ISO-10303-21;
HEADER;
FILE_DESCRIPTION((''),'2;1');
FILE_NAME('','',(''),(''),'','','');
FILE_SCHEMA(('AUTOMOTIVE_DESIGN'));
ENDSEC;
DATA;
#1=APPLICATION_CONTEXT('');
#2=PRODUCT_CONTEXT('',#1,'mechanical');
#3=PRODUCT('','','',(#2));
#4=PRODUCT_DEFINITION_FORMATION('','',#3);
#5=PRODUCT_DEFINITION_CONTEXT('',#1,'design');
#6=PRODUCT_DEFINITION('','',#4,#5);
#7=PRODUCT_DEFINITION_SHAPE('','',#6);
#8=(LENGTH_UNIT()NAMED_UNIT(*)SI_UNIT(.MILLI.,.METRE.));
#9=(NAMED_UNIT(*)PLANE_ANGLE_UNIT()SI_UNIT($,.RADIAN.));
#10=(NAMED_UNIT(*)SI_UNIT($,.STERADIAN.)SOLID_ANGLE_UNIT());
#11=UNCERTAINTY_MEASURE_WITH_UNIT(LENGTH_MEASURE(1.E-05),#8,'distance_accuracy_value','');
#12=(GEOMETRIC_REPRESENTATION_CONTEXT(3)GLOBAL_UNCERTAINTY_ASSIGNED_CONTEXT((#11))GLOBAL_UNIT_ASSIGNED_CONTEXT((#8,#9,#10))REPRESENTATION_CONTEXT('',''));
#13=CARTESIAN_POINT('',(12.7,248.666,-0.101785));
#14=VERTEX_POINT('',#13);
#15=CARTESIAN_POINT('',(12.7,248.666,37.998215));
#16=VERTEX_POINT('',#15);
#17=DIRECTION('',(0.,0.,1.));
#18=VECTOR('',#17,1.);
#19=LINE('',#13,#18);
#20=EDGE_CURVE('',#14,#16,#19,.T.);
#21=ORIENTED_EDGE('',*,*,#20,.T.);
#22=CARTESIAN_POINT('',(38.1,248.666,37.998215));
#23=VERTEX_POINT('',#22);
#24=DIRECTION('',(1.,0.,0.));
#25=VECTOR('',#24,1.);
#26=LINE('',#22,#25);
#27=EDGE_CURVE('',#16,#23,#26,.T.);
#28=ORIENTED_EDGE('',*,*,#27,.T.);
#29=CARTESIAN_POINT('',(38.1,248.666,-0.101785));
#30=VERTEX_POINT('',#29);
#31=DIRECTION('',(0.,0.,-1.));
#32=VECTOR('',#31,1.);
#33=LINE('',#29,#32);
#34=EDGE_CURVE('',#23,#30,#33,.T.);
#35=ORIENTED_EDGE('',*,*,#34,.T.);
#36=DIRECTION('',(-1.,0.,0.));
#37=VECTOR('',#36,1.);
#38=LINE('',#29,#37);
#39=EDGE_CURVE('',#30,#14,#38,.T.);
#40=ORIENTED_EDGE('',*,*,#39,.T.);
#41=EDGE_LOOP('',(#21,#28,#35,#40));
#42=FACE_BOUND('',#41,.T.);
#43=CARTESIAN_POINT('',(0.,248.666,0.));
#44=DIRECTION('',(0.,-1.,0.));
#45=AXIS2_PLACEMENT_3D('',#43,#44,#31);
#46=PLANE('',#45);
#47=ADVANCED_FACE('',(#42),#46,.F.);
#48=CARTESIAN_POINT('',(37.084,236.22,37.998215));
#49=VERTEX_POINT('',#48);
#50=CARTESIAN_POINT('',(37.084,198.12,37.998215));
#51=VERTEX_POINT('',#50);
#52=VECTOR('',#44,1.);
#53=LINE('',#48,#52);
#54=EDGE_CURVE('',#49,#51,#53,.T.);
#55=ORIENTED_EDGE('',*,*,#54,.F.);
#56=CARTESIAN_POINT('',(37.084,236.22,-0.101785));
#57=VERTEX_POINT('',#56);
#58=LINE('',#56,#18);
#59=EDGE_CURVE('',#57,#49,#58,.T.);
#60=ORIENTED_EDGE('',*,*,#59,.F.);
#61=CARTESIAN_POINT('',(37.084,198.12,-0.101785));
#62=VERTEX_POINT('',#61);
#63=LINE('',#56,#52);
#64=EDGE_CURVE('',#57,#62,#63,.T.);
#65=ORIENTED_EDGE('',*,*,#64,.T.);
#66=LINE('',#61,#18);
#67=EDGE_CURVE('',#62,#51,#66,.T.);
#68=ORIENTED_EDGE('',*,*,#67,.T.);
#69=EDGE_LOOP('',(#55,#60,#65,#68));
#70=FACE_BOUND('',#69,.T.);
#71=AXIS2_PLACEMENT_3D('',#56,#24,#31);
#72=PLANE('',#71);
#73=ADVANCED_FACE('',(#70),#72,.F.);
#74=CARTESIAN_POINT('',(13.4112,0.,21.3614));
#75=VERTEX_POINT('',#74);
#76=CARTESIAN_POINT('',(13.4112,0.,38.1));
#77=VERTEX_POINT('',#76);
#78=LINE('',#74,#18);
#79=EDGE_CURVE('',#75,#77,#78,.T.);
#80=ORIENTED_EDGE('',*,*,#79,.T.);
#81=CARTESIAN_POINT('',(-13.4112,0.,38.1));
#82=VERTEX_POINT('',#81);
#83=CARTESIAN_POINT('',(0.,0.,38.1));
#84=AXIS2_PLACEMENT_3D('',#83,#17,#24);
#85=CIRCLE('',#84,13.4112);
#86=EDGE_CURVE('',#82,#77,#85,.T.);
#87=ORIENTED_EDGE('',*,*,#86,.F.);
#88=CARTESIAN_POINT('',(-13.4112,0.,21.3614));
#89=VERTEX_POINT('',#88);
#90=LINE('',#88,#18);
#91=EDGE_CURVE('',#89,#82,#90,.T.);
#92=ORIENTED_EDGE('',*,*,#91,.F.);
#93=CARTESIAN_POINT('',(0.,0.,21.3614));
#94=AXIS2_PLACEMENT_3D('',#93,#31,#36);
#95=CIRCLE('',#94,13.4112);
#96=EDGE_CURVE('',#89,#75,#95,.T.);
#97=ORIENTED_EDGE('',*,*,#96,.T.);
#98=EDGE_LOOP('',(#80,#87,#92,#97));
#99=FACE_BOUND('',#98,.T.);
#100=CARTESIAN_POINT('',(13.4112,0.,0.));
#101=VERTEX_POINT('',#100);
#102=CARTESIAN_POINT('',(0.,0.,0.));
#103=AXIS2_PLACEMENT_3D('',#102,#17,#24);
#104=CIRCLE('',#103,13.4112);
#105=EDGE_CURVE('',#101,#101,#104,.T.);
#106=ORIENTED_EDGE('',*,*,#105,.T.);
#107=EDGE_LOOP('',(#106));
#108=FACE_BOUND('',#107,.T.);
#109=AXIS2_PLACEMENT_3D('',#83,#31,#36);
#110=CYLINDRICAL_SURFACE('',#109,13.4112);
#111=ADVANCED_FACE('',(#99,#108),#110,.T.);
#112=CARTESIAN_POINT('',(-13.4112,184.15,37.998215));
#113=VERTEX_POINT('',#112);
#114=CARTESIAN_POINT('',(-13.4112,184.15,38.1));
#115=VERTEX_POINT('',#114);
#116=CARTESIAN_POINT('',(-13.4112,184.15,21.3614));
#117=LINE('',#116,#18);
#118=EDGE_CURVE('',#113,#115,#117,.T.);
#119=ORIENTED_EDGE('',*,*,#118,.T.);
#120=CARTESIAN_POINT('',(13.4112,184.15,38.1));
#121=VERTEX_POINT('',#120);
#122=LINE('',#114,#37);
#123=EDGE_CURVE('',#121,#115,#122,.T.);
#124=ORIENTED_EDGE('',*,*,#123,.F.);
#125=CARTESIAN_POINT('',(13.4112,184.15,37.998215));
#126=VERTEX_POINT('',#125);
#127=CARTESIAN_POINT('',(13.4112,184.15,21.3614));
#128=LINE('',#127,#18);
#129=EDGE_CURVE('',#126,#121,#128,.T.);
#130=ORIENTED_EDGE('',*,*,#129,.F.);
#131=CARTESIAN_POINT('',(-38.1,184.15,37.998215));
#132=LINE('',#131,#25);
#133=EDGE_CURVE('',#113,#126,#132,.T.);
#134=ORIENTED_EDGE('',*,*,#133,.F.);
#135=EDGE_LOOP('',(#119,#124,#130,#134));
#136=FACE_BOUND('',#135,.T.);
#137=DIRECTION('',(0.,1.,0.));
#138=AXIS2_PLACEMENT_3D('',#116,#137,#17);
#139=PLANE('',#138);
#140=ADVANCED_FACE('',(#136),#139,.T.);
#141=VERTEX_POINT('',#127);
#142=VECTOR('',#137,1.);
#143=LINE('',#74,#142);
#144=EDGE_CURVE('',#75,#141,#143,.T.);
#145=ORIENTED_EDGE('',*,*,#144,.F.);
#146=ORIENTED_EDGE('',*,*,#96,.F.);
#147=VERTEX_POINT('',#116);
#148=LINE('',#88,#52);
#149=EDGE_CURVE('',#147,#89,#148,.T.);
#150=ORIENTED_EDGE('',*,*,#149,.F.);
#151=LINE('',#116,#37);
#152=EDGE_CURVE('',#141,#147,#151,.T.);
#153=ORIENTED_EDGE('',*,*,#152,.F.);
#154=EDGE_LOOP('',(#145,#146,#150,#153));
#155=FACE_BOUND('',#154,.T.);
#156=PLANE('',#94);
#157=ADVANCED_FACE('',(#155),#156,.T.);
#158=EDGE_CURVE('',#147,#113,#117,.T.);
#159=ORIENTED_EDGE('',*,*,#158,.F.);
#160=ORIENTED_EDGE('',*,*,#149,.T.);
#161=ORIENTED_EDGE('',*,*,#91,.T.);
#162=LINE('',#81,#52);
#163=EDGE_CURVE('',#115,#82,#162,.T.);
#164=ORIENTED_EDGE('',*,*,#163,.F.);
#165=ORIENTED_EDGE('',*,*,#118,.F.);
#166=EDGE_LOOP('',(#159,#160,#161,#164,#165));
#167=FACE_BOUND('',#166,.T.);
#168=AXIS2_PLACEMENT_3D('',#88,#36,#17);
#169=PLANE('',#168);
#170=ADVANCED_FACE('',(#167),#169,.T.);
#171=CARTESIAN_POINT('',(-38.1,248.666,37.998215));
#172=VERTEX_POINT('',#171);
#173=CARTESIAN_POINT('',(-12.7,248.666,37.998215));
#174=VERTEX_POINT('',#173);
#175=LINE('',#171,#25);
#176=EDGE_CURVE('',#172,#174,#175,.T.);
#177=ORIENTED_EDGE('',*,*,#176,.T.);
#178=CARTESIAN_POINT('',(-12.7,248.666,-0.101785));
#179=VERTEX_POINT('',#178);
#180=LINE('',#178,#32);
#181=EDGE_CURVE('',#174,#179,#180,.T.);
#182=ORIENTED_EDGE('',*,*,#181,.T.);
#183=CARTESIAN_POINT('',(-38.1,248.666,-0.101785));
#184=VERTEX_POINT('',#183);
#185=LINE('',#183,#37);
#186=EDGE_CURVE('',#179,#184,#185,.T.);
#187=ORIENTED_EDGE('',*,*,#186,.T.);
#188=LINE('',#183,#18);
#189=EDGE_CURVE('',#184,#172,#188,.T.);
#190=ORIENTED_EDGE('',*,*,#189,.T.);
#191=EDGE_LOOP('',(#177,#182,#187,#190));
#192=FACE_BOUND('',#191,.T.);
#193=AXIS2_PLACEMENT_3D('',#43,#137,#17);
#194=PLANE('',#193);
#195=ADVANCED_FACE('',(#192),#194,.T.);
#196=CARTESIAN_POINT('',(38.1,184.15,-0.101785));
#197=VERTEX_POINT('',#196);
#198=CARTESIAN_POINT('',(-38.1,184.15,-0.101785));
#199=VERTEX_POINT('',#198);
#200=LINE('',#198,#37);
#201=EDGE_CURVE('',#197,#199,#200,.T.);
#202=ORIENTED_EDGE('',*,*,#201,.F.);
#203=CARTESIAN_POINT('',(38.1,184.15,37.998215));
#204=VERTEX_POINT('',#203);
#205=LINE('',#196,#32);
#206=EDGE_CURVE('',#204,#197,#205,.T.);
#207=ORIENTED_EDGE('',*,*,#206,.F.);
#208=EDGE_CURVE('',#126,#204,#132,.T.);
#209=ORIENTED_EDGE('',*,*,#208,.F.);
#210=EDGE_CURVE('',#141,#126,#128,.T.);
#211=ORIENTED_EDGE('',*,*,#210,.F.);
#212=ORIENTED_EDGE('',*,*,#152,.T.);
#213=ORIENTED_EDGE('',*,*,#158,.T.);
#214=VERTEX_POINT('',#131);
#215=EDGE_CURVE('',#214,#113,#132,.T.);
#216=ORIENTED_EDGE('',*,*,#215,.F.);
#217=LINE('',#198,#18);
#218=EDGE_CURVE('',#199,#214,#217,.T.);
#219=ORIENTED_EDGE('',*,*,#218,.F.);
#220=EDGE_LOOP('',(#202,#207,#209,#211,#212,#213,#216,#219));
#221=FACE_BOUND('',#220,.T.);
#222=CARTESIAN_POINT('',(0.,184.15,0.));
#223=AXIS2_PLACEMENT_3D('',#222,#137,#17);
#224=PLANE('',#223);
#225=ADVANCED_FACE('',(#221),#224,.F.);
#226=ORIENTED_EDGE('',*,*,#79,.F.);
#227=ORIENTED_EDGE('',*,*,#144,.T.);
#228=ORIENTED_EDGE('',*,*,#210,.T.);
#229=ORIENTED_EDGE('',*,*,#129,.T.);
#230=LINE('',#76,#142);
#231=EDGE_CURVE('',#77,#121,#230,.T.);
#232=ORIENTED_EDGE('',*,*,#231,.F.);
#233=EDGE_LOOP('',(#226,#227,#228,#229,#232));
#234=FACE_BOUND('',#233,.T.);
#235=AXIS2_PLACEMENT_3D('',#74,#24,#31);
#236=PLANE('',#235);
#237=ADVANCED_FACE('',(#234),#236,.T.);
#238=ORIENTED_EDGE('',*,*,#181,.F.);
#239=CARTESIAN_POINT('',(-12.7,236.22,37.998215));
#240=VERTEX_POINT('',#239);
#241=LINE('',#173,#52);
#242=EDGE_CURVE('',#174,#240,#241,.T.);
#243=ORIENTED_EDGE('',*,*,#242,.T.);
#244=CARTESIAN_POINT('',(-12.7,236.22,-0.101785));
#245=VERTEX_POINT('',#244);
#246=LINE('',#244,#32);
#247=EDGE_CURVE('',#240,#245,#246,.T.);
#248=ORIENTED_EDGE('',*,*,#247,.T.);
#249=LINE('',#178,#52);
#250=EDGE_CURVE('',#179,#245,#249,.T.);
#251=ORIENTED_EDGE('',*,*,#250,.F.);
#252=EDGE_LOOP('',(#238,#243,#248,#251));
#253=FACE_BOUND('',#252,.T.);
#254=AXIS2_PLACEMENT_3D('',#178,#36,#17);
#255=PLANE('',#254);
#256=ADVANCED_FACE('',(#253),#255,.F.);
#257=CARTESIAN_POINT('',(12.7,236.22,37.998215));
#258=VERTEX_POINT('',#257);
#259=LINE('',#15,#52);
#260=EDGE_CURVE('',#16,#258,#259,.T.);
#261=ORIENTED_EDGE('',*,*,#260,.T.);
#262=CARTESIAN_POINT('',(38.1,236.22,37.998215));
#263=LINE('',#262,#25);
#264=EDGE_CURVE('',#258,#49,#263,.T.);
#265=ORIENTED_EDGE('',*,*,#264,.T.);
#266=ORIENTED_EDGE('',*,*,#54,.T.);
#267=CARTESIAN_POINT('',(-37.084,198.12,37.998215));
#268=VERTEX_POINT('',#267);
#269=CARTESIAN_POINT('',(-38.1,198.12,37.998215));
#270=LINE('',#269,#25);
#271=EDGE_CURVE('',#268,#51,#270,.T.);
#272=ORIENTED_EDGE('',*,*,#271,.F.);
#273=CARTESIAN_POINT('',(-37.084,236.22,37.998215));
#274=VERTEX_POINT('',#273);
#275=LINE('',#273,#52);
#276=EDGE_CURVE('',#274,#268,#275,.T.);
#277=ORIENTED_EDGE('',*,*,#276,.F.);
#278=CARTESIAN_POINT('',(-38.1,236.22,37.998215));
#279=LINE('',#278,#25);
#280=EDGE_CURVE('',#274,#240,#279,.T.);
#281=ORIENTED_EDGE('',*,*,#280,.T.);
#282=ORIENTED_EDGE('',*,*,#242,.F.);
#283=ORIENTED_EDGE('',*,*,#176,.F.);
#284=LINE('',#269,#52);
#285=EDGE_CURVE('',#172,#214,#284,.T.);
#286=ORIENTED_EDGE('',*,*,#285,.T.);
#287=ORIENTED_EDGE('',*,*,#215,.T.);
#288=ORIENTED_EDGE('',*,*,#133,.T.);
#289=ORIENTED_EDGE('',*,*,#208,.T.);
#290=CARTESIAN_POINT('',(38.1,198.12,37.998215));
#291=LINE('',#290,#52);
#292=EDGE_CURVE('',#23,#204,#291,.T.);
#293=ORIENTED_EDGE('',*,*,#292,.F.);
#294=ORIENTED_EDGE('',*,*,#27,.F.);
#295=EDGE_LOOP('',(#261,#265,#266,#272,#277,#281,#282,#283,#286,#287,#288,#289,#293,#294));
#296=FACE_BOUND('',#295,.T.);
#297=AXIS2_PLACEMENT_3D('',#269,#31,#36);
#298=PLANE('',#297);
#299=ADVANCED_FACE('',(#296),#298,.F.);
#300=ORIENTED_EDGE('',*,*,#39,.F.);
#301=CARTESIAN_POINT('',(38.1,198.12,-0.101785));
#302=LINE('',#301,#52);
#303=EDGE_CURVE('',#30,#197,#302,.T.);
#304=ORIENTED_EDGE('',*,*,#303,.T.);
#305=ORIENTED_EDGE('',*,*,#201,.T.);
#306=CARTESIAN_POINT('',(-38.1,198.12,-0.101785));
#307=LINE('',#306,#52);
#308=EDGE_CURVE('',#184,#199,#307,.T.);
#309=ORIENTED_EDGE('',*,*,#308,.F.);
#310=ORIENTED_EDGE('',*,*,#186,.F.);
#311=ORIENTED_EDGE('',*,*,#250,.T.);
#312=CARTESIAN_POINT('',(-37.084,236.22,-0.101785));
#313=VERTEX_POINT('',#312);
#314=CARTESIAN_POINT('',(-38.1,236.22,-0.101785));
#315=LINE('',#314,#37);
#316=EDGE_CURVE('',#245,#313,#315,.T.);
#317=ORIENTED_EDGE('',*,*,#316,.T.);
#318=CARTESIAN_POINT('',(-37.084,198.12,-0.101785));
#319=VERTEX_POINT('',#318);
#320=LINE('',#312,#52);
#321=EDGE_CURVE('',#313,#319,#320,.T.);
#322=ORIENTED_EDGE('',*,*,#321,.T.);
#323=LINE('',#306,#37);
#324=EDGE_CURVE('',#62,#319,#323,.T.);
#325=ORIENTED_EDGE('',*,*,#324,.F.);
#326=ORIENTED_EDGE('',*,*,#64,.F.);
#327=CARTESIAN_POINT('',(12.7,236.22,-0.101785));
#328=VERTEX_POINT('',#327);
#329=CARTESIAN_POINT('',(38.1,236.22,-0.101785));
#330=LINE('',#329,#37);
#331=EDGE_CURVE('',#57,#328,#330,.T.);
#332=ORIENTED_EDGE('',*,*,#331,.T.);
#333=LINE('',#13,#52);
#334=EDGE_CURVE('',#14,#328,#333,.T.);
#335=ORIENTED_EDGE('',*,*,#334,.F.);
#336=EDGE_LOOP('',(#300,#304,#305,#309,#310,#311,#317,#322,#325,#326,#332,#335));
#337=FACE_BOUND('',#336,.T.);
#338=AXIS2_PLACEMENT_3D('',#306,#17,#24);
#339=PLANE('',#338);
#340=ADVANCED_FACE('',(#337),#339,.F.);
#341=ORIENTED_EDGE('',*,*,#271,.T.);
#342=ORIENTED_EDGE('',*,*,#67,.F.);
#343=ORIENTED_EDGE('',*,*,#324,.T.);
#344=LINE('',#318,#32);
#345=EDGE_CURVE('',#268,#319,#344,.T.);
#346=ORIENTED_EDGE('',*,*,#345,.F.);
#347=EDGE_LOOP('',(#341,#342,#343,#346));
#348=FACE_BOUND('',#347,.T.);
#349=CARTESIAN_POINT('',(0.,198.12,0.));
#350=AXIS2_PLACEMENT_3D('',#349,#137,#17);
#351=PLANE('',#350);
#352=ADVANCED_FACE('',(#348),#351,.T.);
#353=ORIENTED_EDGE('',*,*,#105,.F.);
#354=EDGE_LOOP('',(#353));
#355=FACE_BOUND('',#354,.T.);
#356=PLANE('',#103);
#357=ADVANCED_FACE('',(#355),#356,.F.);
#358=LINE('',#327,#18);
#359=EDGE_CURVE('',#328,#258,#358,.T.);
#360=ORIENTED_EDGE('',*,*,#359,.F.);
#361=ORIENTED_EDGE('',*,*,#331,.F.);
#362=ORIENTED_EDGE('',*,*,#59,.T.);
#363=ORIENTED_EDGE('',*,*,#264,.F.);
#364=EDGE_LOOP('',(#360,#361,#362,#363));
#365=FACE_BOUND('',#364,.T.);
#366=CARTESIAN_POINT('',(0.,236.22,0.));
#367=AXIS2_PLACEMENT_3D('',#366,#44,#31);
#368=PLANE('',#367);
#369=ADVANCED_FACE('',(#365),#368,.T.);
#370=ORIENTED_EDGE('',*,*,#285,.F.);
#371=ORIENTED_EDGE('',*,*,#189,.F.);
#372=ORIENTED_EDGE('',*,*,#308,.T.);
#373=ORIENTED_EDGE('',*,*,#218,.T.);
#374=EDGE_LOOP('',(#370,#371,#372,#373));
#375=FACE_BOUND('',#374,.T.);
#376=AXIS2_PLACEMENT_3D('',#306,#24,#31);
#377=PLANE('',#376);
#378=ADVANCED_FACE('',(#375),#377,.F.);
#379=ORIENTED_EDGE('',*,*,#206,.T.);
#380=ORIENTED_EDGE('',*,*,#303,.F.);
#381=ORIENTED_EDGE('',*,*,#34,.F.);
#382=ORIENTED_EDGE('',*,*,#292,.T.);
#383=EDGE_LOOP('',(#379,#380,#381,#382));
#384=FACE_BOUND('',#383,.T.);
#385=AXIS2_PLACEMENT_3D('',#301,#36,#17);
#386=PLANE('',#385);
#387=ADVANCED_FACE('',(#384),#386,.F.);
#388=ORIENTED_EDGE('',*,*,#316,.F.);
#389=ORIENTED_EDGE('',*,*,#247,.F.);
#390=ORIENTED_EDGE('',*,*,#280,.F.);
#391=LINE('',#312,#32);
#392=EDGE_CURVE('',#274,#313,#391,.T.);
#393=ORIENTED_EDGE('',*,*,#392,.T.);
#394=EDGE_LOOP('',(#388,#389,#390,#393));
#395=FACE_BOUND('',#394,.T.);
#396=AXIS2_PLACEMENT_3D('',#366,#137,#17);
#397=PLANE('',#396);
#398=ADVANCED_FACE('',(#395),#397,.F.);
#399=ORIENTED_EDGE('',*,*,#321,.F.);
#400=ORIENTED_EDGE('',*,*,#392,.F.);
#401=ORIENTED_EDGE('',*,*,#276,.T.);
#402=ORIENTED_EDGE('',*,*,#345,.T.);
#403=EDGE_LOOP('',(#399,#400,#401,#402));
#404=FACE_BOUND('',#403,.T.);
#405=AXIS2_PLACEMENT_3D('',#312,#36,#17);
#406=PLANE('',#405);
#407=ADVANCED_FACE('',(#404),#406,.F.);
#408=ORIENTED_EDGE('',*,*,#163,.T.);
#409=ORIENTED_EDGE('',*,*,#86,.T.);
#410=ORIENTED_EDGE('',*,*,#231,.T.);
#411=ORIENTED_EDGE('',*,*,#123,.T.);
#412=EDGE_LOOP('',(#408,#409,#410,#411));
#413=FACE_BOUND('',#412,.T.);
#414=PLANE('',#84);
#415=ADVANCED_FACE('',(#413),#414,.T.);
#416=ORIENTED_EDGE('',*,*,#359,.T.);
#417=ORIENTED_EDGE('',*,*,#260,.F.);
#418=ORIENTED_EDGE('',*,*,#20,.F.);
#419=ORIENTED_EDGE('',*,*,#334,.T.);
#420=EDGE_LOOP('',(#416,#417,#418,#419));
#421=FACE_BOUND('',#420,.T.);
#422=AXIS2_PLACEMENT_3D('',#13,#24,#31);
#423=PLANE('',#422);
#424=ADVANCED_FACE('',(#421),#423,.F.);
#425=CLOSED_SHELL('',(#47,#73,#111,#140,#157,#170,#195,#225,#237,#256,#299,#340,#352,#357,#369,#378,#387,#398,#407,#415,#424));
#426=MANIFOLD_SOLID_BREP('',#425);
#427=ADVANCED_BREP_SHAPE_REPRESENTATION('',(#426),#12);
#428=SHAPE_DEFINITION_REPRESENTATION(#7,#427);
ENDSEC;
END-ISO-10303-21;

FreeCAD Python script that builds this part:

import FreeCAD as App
import Part
import Sketcher

V = App.Vector
Q = App.Units.Quantity


def add_polygon(sketch, points):
    """Adds a closed chain of lines whose ends are joined by coincident constraints."""
    first, n = sketch.GeometryCount, len(points)
    for a, b in zip(points, points[1:] + points[:1]):
        sketch.addGeometry(Part.LineSegment(App.Vector(*a, 0), App.Vector(*b, 0)), False)
    for i in range(n):
        sketch.addConstraint(Sketcher.Constraint("Coincident", first + i, 2, first + (i + 1) % n, 1))

doc = App.newDocument("Part")
body = doc.addObject("PartDesign::Body", "Body")

# Sketch on XY plane
sketch1 = doc.addObject("Sketcher::SketchObject", "Sketch")
body.addObject(sketch1)
sketch1.AttachmentSupport = (doc.XY_Plane, [""])
sketch1.MapMode = "FlatFace"
sketch1.addGeometry(Part.Circle(V(0, 0, 0), V(0, 0, 1), 13.4112), False)
sketch1.addConstraint(Sketcher.Constraint("Coincident", 0, 3, -1, 1))
sketch1.addConstraint(Sketcher.Constraint("Diameter", 0, Q("1.056 in")))
pad1 = doc.addObject("PartDesign::Pad", "Pad")
body.addObject(pad1)
pad1.Profile = sketch1
pad1.Length = Q("1.5 in")

# Sketch on XY plane
sketch2 = doc.addObject("Sketcher::SketchObject", "Sketch001")
body.addObject(sketch2)
sketch2.AttachmentSupport = (doc.XY_Plane, [""])
sketch2.MapMode = "FlatFace"
sketch2.AttachmentOffset = App.Placement(V(0, 0, 1.5 * 25.4), App.Rotation())
add_polygon(sketch2, [(-13.4112, 184.15), (-13.4112, 0), (13.4112, 0), (13.4112, 184.15)])  # lines 0-3
sketch2.addConstraint(Sketcher.Constraint("Vertical", 0))
sketch2.addConstraint(Sketcher.Constraint("Horizontal", 1))
sketch2.addConstraint(Sketcher.Constraint("Vertical", 2))
sketch2.addConstraint(Sketcher.Constraint("Horizontal", 3))
sketch2.addConstraint(Sketcher.Constraint("Symmetric", 0, 2, 1, 2, -1, 1))
sketch2.addConstraint(Sketcher.Constraint("DistanceY", 0, 2, 0, 1, Q("7.25 in")))
sketch2.addConstraint(Sketcher.Constraint("DistanceX", 1, 1, 1, 2, Q("1.056 in")))
pad2 = doc.addObject("PartDesign::Pad", "Pad001")
body.addObject(pad2)
pad2.Profile = sketch2
pad2.Length = Q("0.659 in")
pad2.Reversed = True

# Sketch on XZ plane
sketch3 = doc.addObject("Sketcher::SketchObject", "Sketch002")
body.addObject(sketch3)
sketch3.AttachmentSupport = (doc.XZ_Plane, [""])
sketch3.MapMode = "FlatFace"
sketch3.AttachmentOffset = App.Placement(V(0, 0, -7.25 * 25.4), App.Rotation())
add_polygon(sketch3, [(-38.1, -0.101785), (-38.1, 37.998215), (38.1, 37.998215), (38.1, -0.101785)])  # lines 0-3
sketch3.addConstraint(Sketcher.Constraint("Vertical", 0))
sketch3.addConstraint(Sketcher.Constraint("Horizontal", 1))
sketch3.addConstraint(Sketcher.Constraint("Vertical", 2))
sketch3.addConstraint(Sketcher.Constraint("Horizontal", 3))
sketch3.addConstraint(Sketcher.Constraint("DistanceX", 1, 1, 1, 2, Q("3 in")))
sketch3.addConstraint(Sketcher.Constraint("DistanceY", 0, 1, 0, 2, Q("1.5 in")))
sketch3.addConstraint(Sketcher.Constraint("DistanceX", 0, 2, -1, 1, Q("1.5 in")))
sketch3.addConstraint(Sketcher.Constraint("DistanceY", -1, 1, 0, 2, 37.998215))
pad3 = doc.addObject("PartDesign::Pad", "Pad002")
body.addObject(pad3)
pad3.Profile = sketch3
pad3.Length = Q("0.55 in")
pad3.Reversed = True

# Sketch on XZ plane
sketch4 = doc.addObject("Sketcher::SketchObject", "Sketch003")
body.addObject(sketch4)
sketch4.AttachmentSupport = (doc.XZ_Plane, [""])
sketch4.MapMode = "FlatFace"
sketch4.AttachmentOffset = App.Placement(V(0, 0, -7.8 * 25.4), App.Rotation())
add_polygon(sketch4, [(-38.1, -0.101785), (-38.1, 37.998215), (-37.084, 37.998215), (-37.084, -0.101785)])  # lines 0-3
add_polygon(sketch4, [(37.084, -0.101785), (37.084, 37.998215), (38.1, 37.998215), (38.1, -0.101785)])  # lines 4-7
sketch4.addConstraint(Sketcher.Constraint("Vertical", 0))
sketch4.addConstraint(Sketcher.Constraint("Horizontal", 1))
sketch4.addConstraint(Sketcher.Constraint("Vertical", 2))
sketch4.addConstraint(Sketcher.Constraint("Horizontal", 3))
sketch4.addConstraint(Sketcher.Constraint("Vertical", 4))
sketch4.addConstraint(Sketcher.Constraint("Horizontal", 5))
sketch4.addConstraint(Sketcher.Constraint("Vertical", 6))
sketch4.addConstraint(Sketcher.Constraint("Horizontal", 7))
sketch4.addConstraint(Sketcher.Constraint("Symmetric", 1, 2, 4, 2, -2))
sketch4.addConstraint(Sketcher.Constraint("Symmetric", 3, 2, 6, 2, -2))
sketch4.addConstraint(Sketcher.Constraint("DistanceY", 0, 1, 0, 2, Q("1.5 in")))
sketch4.addConstraint(Sketcher.Constraint("DistanceX", 0, 2, 5, 2, Q("3 in")))
sketch4.addConstraint(Sketcher.Constraint("DistanceX", 1, 1, 1, 2, Q("0.04 in")))
sketch4.addConstraint(Sketcher.Constraint("DistanceY", -1, 1, 0, 2, 37.998215))
pad4 = doc.addObject("PartDesign::Pad", "Pad003")
body.addObject(pad4)
pad4.Profile = sketch4
pad4.Length = Q("1.5 in")
pad4.Reversed = True

# Sketch on XZ plane
sketch5 = doc.addObject("Sketcher::SketchObject", "Sketch004")
body.addObject(sketch5)
sketch5.AttachmentSupport = (doc.XZ_Plane, [""])
sketch5.MapMode = "FlatFace"
sketch5.AttachmentOffset = App.Placement(V(0, 0, -9.3 * 25.4), App.Rotation())
add_polygon(sketch5, [(-38.1, -0.101785), (-38.1, 37.998215), (-12.7, 37.998215), (-12.7, -0.101785)])  # lines 0-3
add_polygon(sketch5, [(12.7, -0.101785), (12.7, 37.998215), (38.1, 37.998215), (38.1, -0.101785)])  # lines 4-7
sketch5.addConstraint(Sketcher.Constraint("Vertical", 0))
sketch5.addConstraint(Sketcher.Constraint("Horizontal", 1))
sketch5.addConstraint(Sketcher.Constraint("Vertical", 2))
sketch5.addConstraint(Sketcher.Constraint("Horizontal", 3))
sketch5.addConstraint(Sketcher.Constraint("Vertical", 4))
sketch5.addConstraint(Sketcher.Constraint("Horizontal", 5))
sketch5.addConstraint(Sketcher.Constraint("Vertical", 6))
sketch5.addConstraint(Sketcher.Constraint("Horizontal", 7))
sketch5.addConstraint(Sketcher.Constraint("Symmetric", 1, 2, 4, 2, -2))
sketch5.addConstraint(Sketcher.Constraint("Symmetric", 3, 2, 6, 2, -2))
sketch5.addConstraint(Sketcher.Constraint("DistanceX", 1, 1, 1, 2, Q("1 in")))
sketch5.addConstraint(Sketcher.Constraint("DistanceY", 0, 1, 0, 2, Q("1.5 in")))
sketch5.addConstraint(Sketcher.Constraint("DistanceX", 1, 2, 4, 2, Q("1 in")))
sketch5.addConstraint(Sketcher.Constraint("DistanceY", -1, 1, 0, 2, 37.998215))
pad5 = doc.addObject("PartDesign::Pad", "Pad004")
body.addObject(pad5)
pad5.Profile = sketch5
pad5.Length = Q("0.49 in")
pad5.Reversed = True

doc.recompute()
